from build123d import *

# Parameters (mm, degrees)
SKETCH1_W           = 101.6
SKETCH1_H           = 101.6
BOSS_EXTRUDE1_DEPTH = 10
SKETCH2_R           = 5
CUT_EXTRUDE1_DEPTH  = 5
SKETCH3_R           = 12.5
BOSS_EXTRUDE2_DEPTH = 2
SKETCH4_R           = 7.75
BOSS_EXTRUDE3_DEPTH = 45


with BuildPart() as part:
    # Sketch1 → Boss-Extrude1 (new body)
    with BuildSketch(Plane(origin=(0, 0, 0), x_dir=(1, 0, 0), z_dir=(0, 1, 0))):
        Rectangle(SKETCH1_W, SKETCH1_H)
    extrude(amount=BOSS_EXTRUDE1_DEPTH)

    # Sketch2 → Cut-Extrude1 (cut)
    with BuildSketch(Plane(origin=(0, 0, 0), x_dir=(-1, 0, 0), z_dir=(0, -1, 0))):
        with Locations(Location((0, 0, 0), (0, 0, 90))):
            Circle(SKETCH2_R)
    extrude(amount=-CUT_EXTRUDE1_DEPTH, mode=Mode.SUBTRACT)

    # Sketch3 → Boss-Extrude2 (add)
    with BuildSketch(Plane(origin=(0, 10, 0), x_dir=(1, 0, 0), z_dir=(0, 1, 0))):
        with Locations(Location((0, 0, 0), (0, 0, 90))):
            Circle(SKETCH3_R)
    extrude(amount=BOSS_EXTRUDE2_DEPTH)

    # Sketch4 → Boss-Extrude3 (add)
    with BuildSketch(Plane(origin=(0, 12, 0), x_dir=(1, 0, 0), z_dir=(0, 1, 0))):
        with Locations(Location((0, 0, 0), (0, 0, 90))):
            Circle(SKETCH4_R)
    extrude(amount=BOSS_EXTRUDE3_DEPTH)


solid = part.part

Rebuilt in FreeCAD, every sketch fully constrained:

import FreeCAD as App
import Part
import Sketcher
from FreeCAD import Vector
Q = App.Units.Quantity


def add_polygon(sketch, points):
    """Adds a closed chain of lines whose ends are joined by coincident constraints."""
    first, n = sketch.GeometryCount, len(points)
    for a, b in zip(points, points[1:] + points[:1]):
        sketch.addGeometry(Part.LineSegment(App.Vector(*a, 0), App.Vector(*b, 0)), False)
    for i in range(n):
        sketch.addConstraint(Sketcher.Constraint("Coincident", first + i, 2, first + (i + 1) % n, 1))

doc = App.newDocument("Part")
params = doc.addObject("Spreadsheet::Sheet", "Params")
for row, (alias, value) in enumerate([
    ("sketch1_width", "101.6 mm"),
    ("pad1_length", "10 mm"),
    ("sketch2_diameter", "10 mm"),
    ("pocket1_length", "5 mm"),
    ("sketch3_diameter", "25 mm"),
    ("pad2_length", "2 mm"),
    ("sketch4_diameter", "15.5 mm"),
    ("pad3_length", "45 mm"),
], start=1):
    params.set(f"A{row}", alias)
    params.set(f"B{row}", "=" + value)
    params.setAlias(f"B{row}", alias)

body = doc.addObject("PartDesign::Body", "Body")

# Sketch on XZ plane
sketch1 = body.newObject("Sketcher::SketchObject", "Sketch")
sketch1.AttachmentSupport = (doc.getObject("XZ_Plane"), [""])
sketch1.MapMode = "FlatFace"
add_polygon(sketch1, [(-51, -51), (-51, 51), (51, 51), (51, -51)])  # lines 0-3
sketch1.addConstraint([
    Sketcher.Constraint("Vertical", 0),
    Sketcher.Constraint("Horizontal", 1),
    Sketcher.Constraint("Vertical", 2),
    Sketcher.Constraint("Horizontal", 3),
    Sketcher.Constraint("Symmetric", 0, 2, 2, 2, -1, 1),
    Sketcher.Constraint("Equal", 3, 0),
    Sketcher.Constraint("DistanceX", 1, 1, 1, 2, Q("101.6 mm")),
])
sketch1.setExpression("Constraints[10]", "Params.sketch1_width")
pad1 = body.newObject("PartDesign::Pad", "Pad")
pad1.Profile = sketch1
pad1.setExpression("Length", "Params.pad1_length")
pad1.Reversed = True

# Sketch on XZ plane
sketch2 = body.newObject("Sketcher::SketchObject", "Sketch001")
sketch2.AttachmentSupport = (doc.getObject("XZ_Plane"), [""])
sketch2.MapMode = "FlatFace"
sketch2.addGeometry(Part.Circle(Vector(0, 0, 0), Vector(0, 0, 1), 5), False)
sketch2.addConstraint([
    Sketcher.Constraint("Coincident", 0, 3, -1, 1),
    Sketcher.Constraint("Diameter", 0, Q("10 mm")),
])
sketch2.setExpression("Constraints[1]", "Params.sketch2_diameter")
pocket1 = body.newObject("PartDesign::Pocket", "Pocket")
pocket1.Profile = sketch2
pocket1.setExpression("Length", "Params.pocket1_length")

# Sketch on XZ plane
sketch3 = body.newObject("Sketcher::SketchObject", "Sketch002")
sketch3.AttachmentSupport = (doc.getObject("XZ_Plane"), [""])
sketch3.MapMode = "FlatFace"
sketch3.AttachmentOffset = App.Placement(Vector(0, 0, -10), App.Rotation())
sketch3.addGeometry(Part.Circle(Vector(0, 0, 0), Vector(0, 0, 1), 12), False)
sketch3.addConstraint([
    Sketcher.Constraint("Coincident", 0, 3, -1, 1),
    Sketcher.Constraint("Diameter", 0, Q("25 mm")),
])
sketch3.setExpression("Constraints[1]", "Params.sketch3_diameter")
pad2 = body.newObject("PartDesign::Pad", "Pad001")
pad2.Profile = sketch3
pad2.setExpression("Length", "Params.pad2_length")
pad2.Reversed = True

# Sketch on XZ plane
sketch4 = body.newObject("Sketcher::SketchObject", "Sketch003")
sketch4.AttachmentSupport = (doc.getObject("XZ_Plane"), [""])
sketch4.MapMode = "FlatFace"
sketch4.AttachmentOffset = App.Placement(Vector(0, 0, -12), App.Rotation())
sketch4.addGeometry(Part.Circle(Vector(0, 0, 0), Vector(0, 0, 1), 8), False)
sketch4.addConstraint([
    Sketcher.Constraint("Coincident", 0, 3, -1, 1),
    Sketcher.Constraint("Diameter", 0, Q("15.5 mm")),
])
sketch4.setExpression("Constraints[1]", "Params.sketch4_diameter")
pad3 = body.newObject("PartDesign::Pad", "Pad002")
pad3.Profile = sketch4
pad3.setExpression("Length", "Params.pad3_length")
pad3.Reversed = True

doc.recompute()
